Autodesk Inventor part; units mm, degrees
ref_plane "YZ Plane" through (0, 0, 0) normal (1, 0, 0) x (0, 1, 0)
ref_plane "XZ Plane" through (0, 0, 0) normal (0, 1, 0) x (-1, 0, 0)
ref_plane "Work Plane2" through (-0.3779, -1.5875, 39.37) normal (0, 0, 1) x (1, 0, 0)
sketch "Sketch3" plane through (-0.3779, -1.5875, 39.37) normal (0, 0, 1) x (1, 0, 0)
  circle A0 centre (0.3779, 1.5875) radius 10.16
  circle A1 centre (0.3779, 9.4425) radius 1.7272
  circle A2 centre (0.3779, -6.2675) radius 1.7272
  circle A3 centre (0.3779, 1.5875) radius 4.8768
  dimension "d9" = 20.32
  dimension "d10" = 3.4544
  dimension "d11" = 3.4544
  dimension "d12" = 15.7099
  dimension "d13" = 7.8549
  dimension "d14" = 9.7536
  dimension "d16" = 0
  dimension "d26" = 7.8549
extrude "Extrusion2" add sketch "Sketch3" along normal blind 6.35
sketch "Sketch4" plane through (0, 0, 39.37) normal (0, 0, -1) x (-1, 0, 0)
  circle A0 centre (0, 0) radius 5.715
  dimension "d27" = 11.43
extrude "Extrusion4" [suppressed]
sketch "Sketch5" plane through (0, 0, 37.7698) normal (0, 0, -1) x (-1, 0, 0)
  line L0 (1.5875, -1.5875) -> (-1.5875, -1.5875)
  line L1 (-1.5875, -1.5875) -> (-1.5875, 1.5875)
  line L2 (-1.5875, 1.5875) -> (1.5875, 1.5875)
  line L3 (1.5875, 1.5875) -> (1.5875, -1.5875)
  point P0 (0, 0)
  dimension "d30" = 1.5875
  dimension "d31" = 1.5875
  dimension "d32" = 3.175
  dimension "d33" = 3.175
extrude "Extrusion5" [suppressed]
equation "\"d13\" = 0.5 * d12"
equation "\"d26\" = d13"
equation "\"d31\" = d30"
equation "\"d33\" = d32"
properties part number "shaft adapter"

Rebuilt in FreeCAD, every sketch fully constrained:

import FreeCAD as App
import Part
import Sketcher
from FreeCAD import Vector
Q = App.Units.Quantity

doc = App.newDocument("Part")
body = doc.addObject("PartDesign::Body", "Body")

# Sketch on XY plane
sketch1 = body.newObject("Sketcher::SketchObject", "Sketch")
sketch1.AttachmentSupport = (doc.getObject("XY_Plane"), [""])
sketch1.MapMode = "FlatFace"
sketch1.AttachmentOffset = App.Placement(Vector(0, 0, 1.55 * 25.4), App.Rotation())
sketch1.addGeometry(Part.Circle(Vector(0, 0, 0), Vector(0, 0, 1), 10.16), False)
sketch1.addGeometry(Part.Circle(Vector(0, -7.855, 0), Vector(0, 0, 1), 1.7272), False)
sketch1.addGeometry(Part.Circle(Vector(0, 0, 0), Vector(0, 0, 1), 4.8768), False)
sketch1.addGeometry(Part.Circle(Vector(0, 7.855, 0), Vector(0, 0, 1), 1.7272), False)
sketch1.addConstraint(Sketcher.Constraint("Coincident", 0, 3, -1, 1))
sketch1.addConstraint(Sketcher.Constraint("Coincident", 2, 3, -1, 1))
sketch1.addConstraint(Sketcher.Constraint("Equal", 1, 3))
sketch1.addConstraint(Sketcher.Constraint("Symmetric", 1, 3, 3, 3, -1, 1))
sketch1.addConstraint(Sketcher.Constraint("PointOnObject", 1, 3, -2))
sketch1.addConstraint(Sketcher.Constraint("Diameter", 0, Q("0.8 in")))
sketch1.addConstraint(Sketcher.Constraint("Diameter", 1, Q("0.136 in")))
sketch1.addConstraint(Sketcher.Constraint("Diameter", 2, Q("0.384 in")))
sketch1.addConstraint(Sketcher.Constraint("DistanceY", 1, 3, 3, 3, Q("0.6185 in")))
pad1 = body.newObject("PartDesign::Pad", "Pad")
pad1.Profile = sketch1
pad1.Length = Q("0.25 in")

doc.recompute()
